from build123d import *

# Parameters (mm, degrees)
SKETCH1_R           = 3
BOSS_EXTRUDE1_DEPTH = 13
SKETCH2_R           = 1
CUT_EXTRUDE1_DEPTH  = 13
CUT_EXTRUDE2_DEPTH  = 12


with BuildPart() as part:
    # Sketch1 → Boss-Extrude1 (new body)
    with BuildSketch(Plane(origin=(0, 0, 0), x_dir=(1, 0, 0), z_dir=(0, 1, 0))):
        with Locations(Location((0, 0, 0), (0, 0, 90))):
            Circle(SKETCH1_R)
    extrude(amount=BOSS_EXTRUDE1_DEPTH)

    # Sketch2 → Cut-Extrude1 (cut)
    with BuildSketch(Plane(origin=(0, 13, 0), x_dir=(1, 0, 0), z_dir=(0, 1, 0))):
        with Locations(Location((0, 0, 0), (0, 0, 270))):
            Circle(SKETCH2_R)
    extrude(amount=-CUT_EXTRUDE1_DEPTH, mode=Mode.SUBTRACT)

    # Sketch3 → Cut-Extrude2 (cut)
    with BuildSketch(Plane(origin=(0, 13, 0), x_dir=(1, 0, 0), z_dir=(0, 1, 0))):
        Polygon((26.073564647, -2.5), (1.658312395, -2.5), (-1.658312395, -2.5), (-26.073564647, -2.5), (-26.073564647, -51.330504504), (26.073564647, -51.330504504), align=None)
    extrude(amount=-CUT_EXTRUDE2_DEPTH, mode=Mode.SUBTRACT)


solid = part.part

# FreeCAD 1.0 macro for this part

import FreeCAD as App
import Part
import Sketcher

V = App.Vector
Q = App.Units.Quantity

doc = App.newDocument("Part")
body = doc.addObject("PartDesign::Body", "Body")

sketch1 = doc.addObject("Sketcher::SketchObject", "Sketch")
body.addObject(sketch1)
sketch1.AttachmentSupport = (doc.XZ_Plane, [""])
sketch1.MapMode = "FlatFace"
sketch1.addGeometry(Part.Circle(V(0, 0, 0), V(0, 0, 1), 3), False)
sketch1.addConstraint(Sketcher.Constraint("Coincident", 0, 3, -1, 1))
sketch1.addConstraint(Sketcher.Constraint("Diameter", 0, Q("6 mm")))
pad1 = doc.addObject("PartDesign::Pad", "Pad")
body.addObject(pad1)
pad1.Profile = sketch1
pad1.Length = 13
pad1.Reversed = True

sketch2 = doc.addObject("Sketcher::SketchObject", "Sketch001")
body.addObject(sketch2)
sketch2.AttachmentSupport = (doc.XZ_Plane, [""])
sketch2.MapMode = "FlatFace"
sketch2.AttachmentOffset = App.Placement(V(0, 0, -13), App.Rotation())
sketch2.addGeometry(Part.Circle(V(0, 0, 0), V(0, 0, 1), 1), False)
sketch2.addConstraint(Sketcher.Constraint("Coincident", 0, 3, -1, 1))
sketch2.addConstraint(Sketcher.Constraint("Diameter", 0, Q("2 mm")))
pocket1 = doc.addObject("PartDesign::Pocket", "Pocket")
body.addObject(pocket1)
pocket1.Profile = sketch2
pocket1.Length = 13
pocket1.Reversed = True

sketch3 = doc.addObject("Sketcher::SketchObject", "Sketch002")
body.addObject(sketch3)
sketch3.AttachmentSupport = (doc.XZ_Plane, [""])
sketch3.MapMode = "FlatFace"
sketch3.AttachmentOffset = App.Placement(V(0, 0, -13), App.Rotation())
sketch3.addGeometry(Part.LineSegment(V(26.073565, 2.5, 0), V(-26.073565, 2.5, 0)), False)
sketch3.addGeometry(Part.LineSegment(V(-26.073565, 2.5, 0), V(-26.073565, 51.330505, 0)), False)
sketch3.addGeometry(Part.LineSegment(V(-26.073565, 51.330505, 0), V(26.073565, 51.330505, 0)), False)
sketch3.addGeometry(Part.LineSegment(V(26.073565, 51.330505, 0), V(26.073565, 2.5, 0)), False)
sketch3.addConstraint(Sketcher.Constraint("Coincident", 0, 2, 1, 1))
sketch3.addConstraint(Sketcher.Constraint("Coincident", 1, 2, 2, 1))
sketch3.addConstraint(Sketcher.Constraint("Coincident", 2, 2, 3, 1))
sketch3.addConstraint(Sketcher.Constraint("Coincident", 3, 2, 0, 1))
sketch3.addConstraint(Sketcher.Constraint("Horizontal", 0))
sketch3.addConstraint(Sketcher.Constraint("Vertical", 1))
sketch3.addConstraint(Sketcher.Constraint("Horizontal", 2))
sketch3.addConstraint(Sketcher.Constraint("Vertical", 3))
sketch3.addConstraint(Sketcher.Constraint("DistanceY", -1, 1, 0, 2, Q("2.5 mm")))
sketch3.addConstraint(Sketcher.Constraint("DistanceX", 0, 2, 0, 1, Q("52.147129 mm")))
sketch3.addConstraint(Sketcher.Constraint("DistanceY", 1, 1, 1, 2, Q("48.830505 mm")))
sketch3.addConstraint(Sketcher.Constraint("DistanceX", 0, 2, -1, 1, Q("26.073565 mm")))
pocket2 = doc.addObject("PartDesign::Pocket", "Pocket001")
body.addObject(pocket2)
pocket2.Profile = sketch3
pocket2.Length = 12
pocket2.Reversed = True

doc.recompute()
